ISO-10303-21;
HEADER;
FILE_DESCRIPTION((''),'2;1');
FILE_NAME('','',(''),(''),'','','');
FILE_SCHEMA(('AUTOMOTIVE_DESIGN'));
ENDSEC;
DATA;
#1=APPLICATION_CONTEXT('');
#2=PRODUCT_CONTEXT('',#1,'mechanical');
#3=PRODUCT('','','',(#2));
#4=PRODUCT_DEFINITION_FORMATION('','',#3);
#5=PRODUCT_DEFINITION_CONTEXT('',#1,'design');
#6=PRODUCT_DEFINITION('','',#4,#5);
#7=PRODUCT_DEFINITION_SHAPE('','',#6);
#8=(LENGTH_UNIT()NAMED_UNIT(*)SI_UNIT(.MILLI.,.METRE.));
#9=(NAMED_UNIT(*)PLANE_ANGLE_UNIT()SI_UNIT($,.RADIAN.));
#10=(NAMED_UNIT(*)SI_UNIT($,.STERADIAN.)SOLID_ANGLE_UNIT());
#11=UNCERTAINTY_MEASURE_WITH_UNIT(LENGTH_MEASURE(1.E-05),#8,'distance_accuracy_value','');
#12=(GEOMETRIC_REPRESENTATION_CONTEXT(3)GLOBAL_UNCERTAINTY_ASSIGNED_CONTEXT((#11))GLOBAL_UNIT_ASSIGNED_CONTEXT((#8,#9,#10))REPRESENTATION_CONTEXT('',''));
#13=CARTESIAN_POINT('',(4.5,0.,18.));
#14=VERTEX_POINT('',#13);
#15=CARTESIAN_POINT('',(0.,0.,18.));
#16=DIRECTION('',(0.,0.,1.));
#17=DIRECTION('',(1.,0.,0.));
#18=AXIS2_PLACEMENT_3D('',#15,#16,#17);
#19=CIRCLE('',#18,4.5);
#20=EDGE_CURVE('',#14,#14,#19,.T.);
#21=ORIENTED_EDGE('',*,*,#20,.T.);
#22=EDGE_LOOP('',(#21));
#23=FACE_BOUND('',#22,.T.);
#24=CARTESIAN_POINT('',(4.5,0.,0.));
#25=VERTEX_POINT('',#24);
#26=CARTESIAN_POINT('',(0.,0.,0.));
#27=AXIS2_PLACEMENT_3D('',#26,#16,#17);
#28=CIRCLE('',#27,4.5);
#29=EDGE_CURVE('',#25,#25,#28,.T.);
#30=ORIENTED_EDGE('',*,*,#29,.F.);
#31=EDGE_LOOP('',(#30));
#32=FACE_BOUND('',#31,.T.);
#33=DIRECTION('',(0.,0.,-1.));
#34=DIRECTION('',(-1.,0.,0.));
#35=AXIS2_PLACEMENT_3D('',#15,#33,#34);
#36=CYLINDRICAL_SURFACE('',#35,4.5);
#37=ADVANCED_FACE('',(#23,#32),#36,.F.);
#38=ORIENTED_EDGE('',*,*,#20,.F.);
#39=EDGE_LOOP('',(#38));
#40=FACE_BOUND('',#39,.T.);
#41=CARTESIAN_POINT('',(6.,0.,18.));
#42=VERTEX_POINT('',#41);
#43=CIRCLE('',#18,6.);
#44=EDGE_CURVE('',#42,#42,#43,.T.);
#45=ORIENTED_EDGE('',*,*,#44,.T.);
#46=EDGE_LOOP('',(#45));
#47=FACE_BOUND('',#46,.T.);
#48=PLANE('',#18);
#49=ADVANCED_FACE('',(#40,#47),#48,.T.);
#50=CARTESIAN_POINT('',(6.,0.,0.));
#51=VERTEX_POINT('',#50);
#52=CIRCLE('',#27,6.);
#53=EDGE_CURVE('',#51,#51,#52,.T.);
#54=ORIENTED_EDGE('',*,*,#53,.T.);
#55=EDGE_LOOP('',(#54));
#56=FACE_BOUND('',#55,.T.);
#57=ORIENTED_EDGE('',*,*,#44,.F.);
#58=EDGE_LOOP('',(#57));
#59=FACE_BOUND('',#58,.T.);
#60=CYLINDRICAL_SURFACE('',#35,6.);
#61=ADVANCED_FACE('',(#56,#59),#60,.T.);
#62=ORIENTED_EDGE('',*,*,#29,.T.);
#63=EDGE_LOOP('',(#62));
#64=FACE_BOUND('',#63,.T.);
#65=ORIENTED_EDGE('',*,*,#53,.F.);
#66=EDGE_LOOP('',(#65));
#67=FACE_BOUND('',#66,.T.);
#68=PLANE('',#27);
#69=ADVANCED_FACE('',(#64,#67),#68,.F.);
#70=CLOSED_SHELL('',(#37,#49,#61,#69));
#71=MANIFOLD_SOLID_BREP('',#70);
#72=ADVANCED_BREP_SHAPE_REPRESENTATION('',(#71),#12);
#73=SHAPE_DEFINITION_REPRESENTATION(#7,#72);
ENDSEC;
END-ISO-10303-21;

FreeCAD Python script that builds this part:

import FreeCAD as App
import Part
import Sketcher

V = App.Vector
Q = App.Units.Quantity

doc = App.newDocument("Part")
body = doc.addObject("PartDesign::Body", "Body")

# Sketch on XY plane
sketch1 = doc.addObject("Sketcher::SketchObject", "Sketch")
body.addObject(sketch1)
sketch1.AttachmentSupport = (doc.XY_Plane, [""])
sketch1.MapMode = "FlatFace"
sketch1.addGeometry([
    Part.Circle(V(0, 0, 0), V(0, 0, 1), 6),
    Part.Circle(V(0, 0, 0), V(0, 0, 1), 4.5),
], False)
sketch1.addConstraint([
    Sketcher.Constraint("Coincident", 0, 3, -1, 1),
    Sketcher.Constraint("Coincident", 1, 3, -1, 1),
    Sketcher.Constraint("Diameter", 0, Q("12 mm")),
    Sketcher.Constraint("Diameter", 1, Q("9 mm")),
])
pad1 = doc.addObject("PartDesign::Pad", "Pad")
body.addObject(pad1)
pad1.Profile = sketch1
pad1.Length = 18

doc.recompute()
